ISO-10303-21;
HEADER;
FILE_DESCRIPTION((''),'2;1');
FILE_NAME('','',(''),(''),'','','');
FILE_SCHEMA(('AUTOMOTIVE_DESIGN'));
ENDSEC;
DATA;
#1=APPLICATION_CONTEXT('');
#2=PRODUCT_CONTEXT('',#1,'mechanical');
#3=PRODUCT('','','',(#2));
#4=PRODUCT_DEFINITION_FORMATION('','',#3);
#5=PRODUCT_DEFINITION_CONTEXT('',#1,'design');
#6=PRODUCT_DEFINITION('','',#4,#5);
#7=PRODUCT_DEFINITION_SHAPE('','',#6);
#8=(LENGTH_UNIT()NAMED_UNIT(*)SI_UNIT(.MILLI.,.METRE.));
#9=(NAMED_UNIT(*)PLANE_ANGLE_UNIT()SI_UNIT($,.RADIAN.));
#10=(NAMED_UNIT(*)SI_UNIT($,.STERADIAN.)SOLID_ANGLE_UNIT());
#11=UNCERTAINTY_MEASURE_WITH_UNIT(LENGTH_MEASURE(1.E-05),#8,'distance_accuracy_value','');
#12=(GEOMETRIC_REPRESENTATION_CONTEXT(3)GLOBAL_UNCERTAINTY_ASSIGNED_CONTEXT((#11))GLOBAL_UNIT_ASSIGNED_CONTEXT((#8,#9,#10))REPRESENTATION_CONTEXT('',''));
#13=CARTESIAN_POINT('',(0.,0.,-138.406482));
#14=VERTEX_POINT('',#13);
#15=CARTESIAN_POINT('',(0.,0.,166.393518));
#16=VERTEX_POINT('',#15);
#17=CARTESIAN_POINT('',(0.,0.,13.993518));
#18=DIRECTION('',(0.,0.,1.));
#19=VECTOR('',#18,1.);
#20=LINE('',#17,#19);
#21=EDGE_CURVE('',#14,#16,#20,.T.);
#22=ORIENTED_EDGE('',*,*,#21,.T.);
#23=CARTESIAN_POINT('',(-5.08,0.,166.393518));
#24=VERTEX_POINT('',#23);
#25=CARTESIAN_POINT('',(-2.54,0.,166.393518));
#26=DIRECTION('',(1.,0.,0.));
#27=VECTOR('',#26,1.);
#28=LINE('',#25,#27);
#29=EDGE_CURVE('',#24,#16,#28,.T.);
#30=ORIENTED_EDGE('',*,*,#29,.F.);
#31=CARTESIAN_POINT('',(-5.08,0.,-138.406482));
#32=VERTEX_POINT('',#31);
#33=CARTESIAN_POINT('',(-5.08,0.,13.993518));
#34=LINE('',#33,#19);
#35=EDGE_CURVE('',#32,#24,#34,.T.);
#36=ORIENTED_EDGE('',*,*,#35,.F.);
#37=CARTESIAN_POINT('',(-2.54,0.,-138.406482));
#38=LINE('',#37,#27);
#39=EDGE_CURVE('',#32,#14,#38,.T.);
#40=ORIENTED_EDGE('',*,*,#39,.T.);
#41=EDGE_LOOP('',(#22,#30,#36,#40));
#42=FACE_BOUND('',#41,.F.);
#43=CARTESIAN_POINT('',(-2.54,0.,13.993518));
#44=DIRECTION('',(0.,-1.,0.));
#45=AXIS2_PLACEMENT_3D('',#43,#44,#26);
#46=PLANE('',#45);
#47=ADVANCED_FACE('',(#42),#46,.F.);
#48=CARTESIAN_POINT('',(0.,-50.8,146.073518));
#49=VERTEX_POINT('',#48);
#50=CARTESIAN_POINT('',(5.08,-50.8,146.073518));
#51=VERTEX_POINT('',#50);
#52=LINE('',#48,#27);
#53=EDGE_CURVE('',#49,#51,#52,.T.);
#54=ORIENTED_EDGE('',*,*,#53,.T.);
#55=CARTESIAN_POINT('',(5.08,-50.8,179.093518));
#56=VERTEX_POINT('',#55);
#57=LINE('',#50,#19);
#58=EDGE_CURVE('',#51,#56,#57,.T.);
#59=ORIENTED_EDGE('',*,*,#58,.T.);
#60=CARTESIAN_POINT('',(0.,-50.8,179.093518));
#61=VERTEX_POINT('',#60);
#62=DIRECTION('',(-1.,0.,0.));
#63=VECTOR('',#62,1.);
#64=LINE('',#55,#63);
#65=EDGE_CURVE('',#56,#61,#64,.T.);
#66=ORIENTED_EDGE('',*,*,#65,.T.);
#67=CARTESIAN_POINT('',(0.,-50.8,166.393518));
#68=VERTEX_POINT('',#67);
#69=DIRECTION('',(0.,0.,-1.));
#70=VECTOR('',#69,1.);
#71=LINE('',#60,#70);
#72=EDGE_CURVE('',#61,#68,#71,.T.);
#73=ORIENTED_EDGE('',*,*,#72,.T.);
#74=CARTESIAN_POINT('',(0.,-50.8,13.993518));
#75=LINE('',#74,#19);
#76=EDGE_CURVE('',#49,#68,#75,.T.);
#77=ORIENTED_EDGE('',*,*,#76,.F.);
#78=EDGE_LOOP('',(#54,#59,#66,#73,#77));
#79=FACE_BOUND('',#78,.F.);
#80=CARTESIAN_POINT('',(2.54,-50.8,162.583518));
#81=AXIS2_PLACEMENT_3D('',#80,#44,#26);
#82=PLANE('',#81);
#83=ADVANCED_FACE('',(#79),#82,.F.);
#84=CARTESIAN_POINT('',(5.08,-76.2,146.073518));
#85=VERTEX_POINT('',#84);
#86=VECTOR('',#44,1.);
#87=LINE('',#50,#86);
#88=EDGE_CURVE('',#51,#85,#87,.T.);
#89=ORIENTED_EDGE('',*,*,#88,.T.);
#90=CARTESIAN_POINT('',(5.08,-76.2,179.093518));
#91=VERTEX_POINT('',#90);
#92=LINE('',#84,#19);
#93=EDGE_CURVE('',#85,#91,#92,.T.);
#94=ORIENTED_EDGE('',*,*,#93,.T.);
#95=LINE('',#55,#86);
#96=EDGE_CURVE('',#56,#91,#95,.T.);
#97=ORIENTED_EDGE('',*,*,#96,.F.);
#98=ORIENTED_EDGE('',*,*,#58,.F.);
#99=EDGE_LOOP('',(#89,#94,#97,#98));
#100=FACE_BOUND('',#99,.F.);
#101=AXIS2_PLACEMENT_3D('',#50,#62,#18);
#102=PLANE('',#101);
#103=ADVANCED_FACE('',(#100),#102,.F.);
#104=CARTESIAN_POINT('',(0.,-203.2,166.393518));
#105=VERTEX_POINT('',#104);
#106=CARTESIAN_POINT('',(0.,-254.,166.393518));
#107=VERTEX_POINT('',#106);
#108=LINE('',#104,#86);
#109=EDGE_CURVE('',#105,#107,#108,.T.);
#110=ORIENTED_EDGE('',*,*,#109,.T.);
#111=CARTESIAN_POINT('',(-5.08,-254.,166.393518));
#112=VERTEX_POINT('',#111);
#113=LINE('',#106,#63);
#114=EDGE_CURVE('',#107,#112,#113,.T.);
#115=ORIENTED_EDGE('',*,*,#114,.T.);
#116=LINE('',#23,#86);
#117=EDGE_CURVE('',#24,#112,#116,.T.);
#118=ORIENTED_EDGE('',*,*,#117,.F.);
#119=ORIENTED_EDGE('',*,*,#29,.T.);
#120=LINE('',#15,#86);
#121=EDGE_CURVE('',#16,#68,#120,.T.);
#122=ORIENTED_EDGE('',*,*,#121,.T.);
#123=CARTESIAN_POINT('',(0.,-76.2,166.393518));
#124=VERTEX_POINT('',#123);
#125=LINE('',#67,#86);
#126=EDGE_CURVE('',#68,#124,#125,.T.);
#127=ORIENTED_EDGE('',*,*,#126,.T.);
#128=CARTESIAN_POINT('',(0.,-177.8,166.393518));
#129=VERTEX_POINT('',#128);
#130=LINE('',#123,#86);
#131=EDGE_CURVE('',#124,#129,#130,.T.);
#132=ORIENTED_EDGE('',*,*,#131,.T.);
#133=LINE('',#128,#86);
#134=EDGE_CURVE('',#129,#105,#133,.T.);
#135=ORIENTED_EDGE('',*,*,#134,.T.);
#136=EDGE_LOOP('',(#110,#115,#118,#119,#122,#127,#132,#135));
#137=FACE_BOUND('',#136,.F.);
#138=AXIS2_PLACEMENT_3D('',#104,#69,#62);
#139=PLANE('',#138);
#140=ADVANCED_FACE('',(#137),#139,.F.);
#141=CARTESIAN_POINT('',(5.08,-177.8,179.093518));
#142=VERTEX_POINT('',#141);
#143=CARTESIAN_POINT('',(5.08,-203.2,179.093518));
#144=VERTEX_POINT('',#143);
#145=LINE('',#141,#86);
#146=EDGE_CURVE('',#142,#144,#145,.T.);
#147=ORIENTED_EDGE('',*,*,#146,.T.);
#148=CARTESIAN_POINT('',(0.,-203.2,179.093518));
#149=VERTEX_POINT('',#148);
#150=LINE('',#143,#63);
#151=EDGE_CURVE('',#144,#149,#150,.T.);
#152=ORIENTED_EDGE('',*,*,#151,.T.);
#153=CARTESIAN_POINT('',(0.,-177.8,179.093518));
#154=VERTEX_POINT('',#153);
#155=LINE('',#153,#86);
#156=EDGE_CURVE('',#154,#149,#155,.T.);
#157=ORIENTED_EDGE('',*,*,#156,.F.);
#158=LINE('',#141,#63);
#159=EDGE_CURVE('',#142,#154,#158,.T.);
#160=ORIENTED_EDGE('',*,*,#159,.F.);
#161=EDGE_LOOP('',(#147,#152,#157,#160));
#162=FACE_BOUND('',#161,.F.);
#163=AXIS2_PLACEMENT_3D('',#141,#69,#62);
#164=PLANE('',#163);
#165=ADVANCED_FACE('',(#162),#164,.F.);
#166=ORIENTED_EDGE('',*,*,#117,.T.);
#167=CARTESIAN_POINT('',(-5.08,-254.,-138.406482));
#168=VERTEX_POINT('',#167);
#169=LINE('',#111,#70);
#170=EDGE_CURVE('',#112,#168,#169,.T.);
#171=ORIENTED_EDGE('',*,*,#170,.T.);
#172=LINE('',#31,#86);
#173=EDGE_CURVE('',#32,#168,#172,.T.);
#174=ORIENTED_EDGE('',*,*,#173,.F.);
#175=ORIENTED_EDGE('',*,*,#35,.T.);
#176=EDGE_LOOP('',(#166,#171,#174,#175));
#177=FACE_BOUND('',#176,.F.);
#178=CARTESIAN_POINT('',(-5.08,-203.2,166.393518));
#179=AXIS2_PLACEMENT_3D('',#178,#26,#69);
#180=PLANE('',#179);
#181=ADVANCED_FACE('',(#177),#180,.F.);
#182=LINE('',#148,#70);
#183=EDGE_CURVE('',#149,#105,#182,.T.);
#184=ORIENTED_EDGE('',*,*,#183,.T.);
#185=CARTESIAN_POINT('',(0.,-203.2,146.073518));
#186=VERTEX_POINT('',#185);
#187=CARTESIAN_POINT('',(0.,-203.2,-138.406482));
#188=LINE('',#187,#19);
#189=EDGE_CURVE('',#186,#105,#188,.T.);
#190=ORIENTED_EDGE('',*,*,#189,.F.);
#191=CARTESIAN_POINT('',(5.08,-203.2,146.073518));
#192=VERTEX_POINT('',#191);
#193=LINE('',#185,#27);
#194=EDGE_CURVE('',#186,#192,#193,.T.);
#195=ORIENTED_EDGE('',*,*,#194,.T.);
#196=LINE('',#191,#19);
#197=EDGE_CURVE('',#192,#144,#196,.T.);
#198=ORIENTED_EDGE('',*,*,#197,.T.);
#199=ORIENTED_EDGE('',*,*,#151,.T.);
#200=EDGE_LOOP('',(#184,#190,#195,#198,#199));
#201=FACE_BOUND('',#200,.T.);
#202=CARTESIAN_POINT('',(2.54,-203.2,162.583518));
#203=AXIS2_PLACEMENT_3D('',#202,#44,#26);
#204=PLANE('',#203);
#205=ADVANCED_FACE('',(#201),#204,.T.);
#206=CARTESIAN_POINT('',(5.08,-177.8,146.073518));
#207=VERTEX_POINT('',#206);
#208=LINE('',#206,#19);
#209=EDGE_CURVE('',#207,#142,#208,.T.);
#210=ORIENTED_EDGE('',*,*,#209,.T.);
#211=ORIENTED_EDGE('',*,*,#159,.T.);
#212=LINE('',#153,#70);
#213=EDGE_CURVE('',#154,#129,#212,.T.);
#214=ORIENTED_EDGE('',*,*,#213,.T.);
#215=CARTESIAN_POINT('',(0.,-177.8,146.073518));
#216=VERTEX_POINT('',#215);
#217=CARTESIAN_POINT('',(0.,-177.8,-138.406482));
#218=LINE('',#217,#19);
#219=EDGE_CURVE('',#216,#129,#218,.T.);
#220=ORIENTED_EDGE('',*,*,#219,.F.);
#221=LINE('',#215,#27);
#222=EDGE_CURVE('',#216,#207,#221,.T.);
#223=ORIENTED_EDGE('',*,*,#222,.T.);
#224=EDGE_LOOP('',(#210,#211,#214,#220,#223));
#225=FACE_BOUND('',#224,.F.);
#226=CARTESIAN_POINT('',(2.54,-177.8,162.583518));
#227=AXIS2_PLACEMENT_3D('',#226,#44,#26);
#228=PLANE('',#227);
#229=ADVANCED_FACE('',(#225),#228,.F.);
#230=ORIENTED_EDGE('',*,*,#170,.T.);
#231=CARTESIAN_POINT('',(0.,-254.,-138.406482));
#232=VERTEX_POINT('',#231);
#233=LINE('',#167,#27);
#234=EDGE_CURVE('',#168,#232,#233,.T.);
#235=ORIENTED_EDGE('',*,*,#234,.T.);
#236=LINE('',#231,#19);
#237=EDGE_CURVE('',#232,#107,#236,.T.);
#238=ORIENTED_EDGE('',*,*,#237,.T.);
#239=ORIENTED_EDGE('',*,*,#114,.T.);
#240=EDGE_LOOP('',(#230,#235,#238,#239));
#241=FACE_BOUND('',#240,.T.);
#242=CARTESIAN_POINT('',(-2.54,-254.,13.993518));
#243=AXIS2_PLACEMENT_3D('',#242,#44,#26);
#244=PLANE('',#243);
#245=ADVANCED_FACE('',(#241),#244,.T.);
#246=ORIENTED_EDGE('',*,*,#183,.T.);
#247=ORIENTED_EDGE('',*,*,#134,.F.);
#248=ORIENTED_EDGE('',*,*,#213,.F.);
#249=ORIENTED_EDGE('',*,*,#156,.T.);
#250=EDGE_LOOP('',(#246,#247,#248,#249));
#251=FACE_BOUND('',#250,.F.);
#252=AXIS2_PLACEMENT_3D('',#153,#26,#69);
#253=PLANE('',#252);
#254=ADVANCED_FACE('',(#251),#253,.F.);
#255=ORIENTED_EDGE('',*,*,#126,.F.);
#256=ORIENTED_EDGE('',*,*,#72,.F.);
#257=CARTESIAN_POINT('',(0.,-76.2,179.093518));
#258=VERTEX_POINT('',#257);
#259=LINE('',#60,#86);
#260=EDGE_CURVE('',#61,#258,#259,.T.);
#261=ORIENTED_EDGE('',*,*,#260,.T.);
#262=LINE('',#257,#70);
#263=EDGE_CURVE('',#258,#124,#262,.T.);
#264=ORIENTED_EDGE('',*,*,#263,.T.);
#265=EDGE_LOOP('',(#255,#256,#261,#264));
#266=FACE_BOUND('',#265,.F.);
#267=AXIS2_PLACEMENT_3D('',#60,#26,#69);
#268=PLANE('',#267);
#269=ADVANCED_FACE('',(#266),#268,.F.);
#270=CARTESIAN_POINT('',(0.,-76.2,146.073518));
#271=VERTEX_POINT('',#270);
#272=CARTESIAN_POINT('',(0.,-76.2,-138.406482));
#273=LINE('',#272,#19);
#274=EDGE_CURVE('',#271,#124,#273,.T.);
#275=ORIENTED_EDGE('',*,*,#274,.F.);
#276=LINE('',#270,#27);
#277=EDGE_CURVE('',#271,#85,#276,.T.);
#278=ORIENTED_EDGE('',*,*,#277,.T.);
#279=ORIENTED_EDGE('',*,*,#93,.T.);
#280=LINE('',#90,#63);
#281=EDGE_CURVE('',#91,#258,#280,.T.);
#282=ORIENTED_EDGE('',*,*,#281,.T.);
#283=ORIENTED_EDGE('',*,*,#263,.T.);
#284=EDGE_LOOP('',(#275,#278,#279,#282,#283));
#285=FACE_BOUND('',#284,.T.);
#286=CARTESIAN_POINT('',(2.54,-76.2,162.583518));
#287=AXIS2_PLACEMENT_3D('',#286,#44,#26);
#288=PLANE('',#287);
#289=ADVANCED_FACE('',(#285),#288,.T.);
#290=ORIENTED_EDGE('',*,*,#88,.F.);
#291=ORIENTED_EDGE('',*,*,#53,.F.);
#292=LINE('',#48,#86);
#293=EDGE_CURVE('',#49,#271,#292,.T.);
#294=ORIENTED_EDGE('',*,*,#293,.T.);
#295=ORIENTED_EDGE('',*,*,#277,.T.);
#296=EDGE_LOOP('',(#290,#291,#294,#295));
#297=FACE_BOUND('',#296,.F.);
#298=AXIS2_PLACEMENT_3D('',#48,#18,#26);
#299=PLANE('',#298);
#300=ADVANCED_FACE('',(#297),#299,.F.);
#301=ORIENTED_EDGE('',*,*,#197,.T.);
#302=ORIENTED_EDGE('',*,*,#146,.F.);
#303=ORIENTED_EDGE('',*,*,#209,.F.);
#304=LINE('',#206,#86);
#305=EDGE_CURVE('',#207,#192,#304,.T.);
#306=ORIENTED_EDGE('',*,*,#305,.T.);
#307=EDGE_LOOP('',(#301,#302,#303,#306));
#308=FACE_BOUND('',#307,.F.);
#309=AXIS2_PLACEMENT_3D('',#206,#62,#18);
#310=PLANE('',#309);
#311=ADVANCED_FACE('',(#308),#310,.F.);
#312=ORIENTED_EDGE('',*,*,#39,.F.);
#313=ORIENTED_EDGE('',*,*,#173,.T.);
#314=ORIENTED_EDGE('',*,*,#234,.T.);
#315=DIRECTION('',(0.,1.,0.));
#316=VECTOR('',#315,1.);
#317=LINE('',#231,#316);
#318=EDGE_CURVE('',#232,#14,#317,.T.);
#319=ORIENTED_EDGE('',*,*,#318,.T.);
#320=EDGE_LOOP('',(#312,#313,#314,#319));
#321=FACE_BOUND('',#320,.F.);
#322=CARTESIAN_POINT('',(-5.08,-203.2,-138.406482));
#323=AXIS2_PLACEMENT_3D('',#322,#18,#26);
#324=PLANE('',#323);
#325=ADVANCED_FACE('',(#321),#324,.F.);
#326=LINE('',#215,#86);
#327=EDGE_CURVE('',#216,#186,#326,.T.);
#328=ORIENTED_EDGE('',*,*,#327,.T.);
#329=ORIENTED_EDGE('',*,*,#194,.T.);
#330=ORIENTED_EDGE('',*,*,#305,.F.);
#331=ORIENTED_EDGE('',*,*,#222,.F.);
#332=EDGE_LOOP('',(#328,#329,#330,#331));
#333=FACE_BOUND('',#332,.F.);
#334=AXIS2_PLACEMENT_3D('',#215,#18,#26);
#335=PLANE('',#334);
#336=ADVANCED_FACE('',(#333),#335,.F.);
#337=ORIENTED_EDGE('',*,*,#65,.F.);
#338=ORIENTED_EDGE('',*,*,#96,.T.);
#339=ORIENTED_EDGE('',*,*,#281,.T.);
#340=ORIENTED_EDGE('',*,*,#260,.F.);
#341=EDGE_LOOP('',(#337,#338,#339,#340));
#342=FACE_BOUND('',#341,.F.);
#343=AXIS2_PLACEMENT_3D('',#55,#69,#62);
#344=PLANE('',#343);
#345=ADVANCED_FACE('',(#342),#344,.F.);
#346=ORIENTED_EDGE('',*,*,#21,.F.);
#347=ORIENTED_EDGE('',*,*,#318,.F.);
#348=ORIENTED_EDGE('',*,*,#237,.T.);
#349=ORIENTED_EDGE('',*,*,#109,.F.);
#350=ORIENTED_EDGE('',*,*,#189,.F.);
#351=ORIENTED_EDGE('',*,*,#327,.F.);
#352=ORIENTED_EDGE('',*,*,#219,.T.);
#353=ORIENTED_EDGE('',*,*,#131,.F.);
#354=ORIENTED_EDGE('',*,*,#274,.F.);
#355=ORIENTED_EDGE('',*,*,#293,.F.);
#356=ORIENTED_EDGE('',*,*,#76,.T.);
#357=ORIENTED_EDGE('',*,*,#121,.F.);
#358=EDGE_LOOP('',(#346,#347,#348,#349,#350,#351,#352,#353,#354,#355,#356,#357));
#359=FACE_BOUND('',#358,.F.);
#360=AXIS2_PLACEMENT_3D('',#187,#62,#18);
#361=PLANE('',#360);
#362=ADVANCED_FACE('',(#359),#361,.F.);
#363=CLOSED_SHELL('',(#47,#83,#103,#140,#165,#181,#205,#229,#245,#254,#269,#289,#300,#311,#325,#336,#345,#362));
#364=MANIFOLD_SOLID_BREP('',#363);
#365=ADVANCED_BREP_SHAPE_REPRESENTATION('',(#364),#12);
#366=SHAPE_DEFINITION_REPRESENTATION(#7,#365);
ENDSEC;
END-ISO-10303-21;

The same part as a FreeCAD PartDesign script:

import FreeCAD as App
import Part
import Sketcher
from FreeCAD import Vector
Q = App.Units.Quantity


def add_polygon(sketch, points):
    """Adds a closed chain of lines whose ends are joined by coincident constraints."""
    first, n = sketch.GeometryCount, len(points)
    for a, b in zip(points, points[1:] + points[:1]):
        sketch.addGeometry(Part.LineSegment(App.Vector(*a, 0), App.Vector(*b, 0)), False)
    for i in range(n):
        sketch.addConstraint(Sketcher.Constraint("Coincident", first + i, 2, first + (i + 1) % n, 1))

doc = App.newDocument("Part")
body = doc.addObject("PartDesign::Body", "Body")

# Sketch on XZ plane
sketch1 = body.newObject("Sketcher::SketchObject", "Sketch")
sketch1.AttachmentSupport = (doc.getObject("XZ_Plane"), [""])
sketch1.MapMode = "FlatFace"
add_polygon(sketch1, [(-5.08, 166.393518), (-5.08, -138.406482), (0, -138.406482), (0, 166.393518)])  # lines 0-3
sketch1.addConstraint([
    Sketcher.Constraint("Vertical", 0),
    Sketcher.Constraint("Horizontal", 1),
    Sketcher.Constraint("Vertical", 2),
    Sketcher.Constraint("Horizontal", 3),
    Sketcher.Constraint("PointOnObject", 1, 2, -2),
    Sketcher.Constraint("DistanceY", 0, 2, 0, 1, Q("12 in")),
    Sketcher.Constraint("DistanceX", 1, 1, 1, 2, Q("0.2 in")),
    Sketcher.Constraint("DistanceY", 0, 2, -1, 1, Q("138.406482 mm")),
])
pad1 = body.newObject("PartDesign::Pad", "Pad")
pad1.Profile = sketch1
pad1.Length = Q("2 in")

# Sketch on XZ plane
sketch2 = body.newObject("Sketcher::SketchObject", "Sketch001")
sketch2.AttachmentSupport = (doc.getObject("XZ_Plane"), [""])
sketch2.MapMode = "FlatFace"
sketch2.AttachmentOffset = App.Placement(Vector(0, 0, 2 * 25.4), App.Rotation())
add_polygon(sketch2, [(0, 179.093518), (0, 166.393518), (-5.08, 166.393518), (-5.08, -138.406482), (0, -138.406482), (0, 146.073518), (5.08, 146.073518), (5.08, 179.093518)])  # lines 0-7
sketch2.addConstraint([
    Sketcher.Constraint("Vertical", 0),
    Sketcher.Constraint("Horizontal", 1),
    Sketcher.Constraint("Vertical", 2),
    Sketcher.Constraint("Horizontal", 3),
    Sketcher.Constraint("Vertical", 4),
    Sketcher.Constraint("Horizontal", 5),
    Sketcher.Constraint("Vertical", 6),
    Sketcher.Constraint("Horizontal", 7),
    Sketcher.Constraint("PointOnObject", 0, 2, -2),
    Sketcher.Constraint("PointOnObject", 3, 2, -2),
    Sketcher.Constraint("Equal", 3, 5),
    Sketcher.Constraint("DistanceY", 2, 2, 2, 1, Q("12 in")),
    Sketcher.Constraint("DistanceX", 1, 2, 1, 1, Q("0.2 in")),
    Sketcher.Constraint("DistanceY", 0, 2, 0, 1, Q("0.5 in")),
    Sketcher.Constraint("DistanceY", 4, 1, 4, 2, Q("11.2 in")),
    Sketcher.Constraint("DistanceY", -1, 1, 0, 2, Q("166.393518 mm")),
])
pad2 = body.newObject("PartDesign::Pad", "Pad001")
pad2.Profile = sketch2
pad2.Length = Q("1 in")

# Sketch on XZ plane
sketch3 = body.newObject("Sketcher::SketchObject", "Sketch002")
sketch3.AttachmentSupport = (doc.getObject("XZ_Plane"), [""])
sketch3.MapMode = "FlatFace"
sketch3.AttachmentOffset = App.Placement(Vector(0, 0, 3 * 25.4), App.Rotation())
add_polygon(sketch3, [(0, 166.393518), (-5.08, 166.393518), (-5.08, -138.406482), (0, -138.406482)])  # lines 0-3
sketch3.addConstraint([
    Sketcher.Constraint("Horizontal", 0),
    Sketcher.Constraint("Vertical", 1),
    Sketcher.Constraint("Horizontal", 2),
    Sketcher.Constraint("Vertical", 3),
    Sketcher.Constraint("PointOnObject", 2, 2, -2),
    Sketcher.Constraint("DistanceY", 1, 2, 1, 1, Q("12 in")),
    Sketcher.Constraint("DistanceX", 0, 2, 0, 1, Q("0.2 in")),
    Sketcher.Constraint("DistanceY", -1, 1, 0, 2, Q("166.393518 mm")),
])
pad3 = body.newObject("PartDesign::Pad", "Pad002")
pad3.Profile = sketch3
pad3.Length = Q("4 in")

# Sketch on XZ plane
sketch4 = body.newObject("Sketcher::SketchObject", "Sketch003")
sketch4.AttachmentSupport = (doc.getObject("XZ_Plane"), [""])
sketch4.MapMode = "FlatFace"
sketch4.AttachmentOffset = App.Placement(Vector(0, 0, 7 * 25.4), App.Rotation())
add_polygon(sketch4, [(0, 179.093518), (0, 166.393518), (-5.08, 166.393518), (-5.08, -138.406482), (0, -138.406482), (0, 146.073518), (5.08, 146.073518), (5.08, 179.093518)])  # lines 0-7
sketch4.addConstraint([
    Sketcher.Constraint("Vertical", 0),
    Sketcher.Constraint("Horizontal", 1),
    Sketcher.Constraint("Vertical", 2),
    Sketcher.Constraint("Horizontal", 3),
    Sketcher.Constraint("Vertical", 4),
    Sketcher.Constraint("Horizontal", 5),
    Sketcher.Constraint("Vertical", 6),
    Sketcher.Constraint("Horizontal", 7),
    Sketcher.Constraint("PointOnObject", 0, 2, -2),
    Sketcher.Constraint("PointOnObject", 3, 2, -2),
    Sketcher.Constraint("Equal", 3, 5),
    Sketcher.Constraint("DistanceY", 2, 2, 2, 1, Q("12 in")),
    Sketcher.Constraint("DistanceX", 1, 2, 1, 1, Q("0.2 in")),
    Sketcher.Constraint("DistanceY", 0, 2, 0, 1, Q("0.5 in")),
    Sketcher.Constraint("DistanceY", 4, 1, 4, 2, Q("11.2 in")),
    Sketcher.Constraint("DistanceY", -1, 1, 0, 2, Q("166.393518 mm")),
])
pad4 = body.newObject("PartDesign::Pad", "Pad003")
pad4.Profile = sketch4
pad4.Length = Q("1 in")

# Sketch on XZ plane
sketch5 = body.newObject("Sketcher::SketchObject", "Sketch004")
sketch5.AttachmentSupport = (doc.getObject("XZ_Plane"), [""])
sketch5.MapMode = "FlatFace"
sketch5.AttachmentOffset = App.Placement(Vector(0, 0, 8 * 25.4), App.Rotation())
add_polygon(sketch5, [(0, 166.393518), (-5.08, 166.393518), (-5.08, -138.406482), (0, -138.406482)])  # lines 0-3
sketch5.addConstraint([
    Sketcher.Constraint("Horizontal", 0),
    Sketcher.Constraint("Vertical", 1),
    Sketcher.Constraint("Horizontal", 2),
    Sketcher.Constraint("Vertical", 3),
    Sketcher.Constraint("PointOnObject", 2, 2, -2),
    Sketcher.Constraint("DistanceY", 1, 2, 1, 1, Q("12 in")),
    Sketcher.Constraint("DistanceX", 0, 2, 0, 1, Q("0.2 in")),
    Sketcher.Constraint("DistanceY", -1, 1, 0, 2, Q("166.393518 mm")),
])
pad5 = body.newObject("PartDesign::Pad", "Pad004")
pad5.Profile = sketch5
pad5.Length = Q("2 in")

doc.recompute()
